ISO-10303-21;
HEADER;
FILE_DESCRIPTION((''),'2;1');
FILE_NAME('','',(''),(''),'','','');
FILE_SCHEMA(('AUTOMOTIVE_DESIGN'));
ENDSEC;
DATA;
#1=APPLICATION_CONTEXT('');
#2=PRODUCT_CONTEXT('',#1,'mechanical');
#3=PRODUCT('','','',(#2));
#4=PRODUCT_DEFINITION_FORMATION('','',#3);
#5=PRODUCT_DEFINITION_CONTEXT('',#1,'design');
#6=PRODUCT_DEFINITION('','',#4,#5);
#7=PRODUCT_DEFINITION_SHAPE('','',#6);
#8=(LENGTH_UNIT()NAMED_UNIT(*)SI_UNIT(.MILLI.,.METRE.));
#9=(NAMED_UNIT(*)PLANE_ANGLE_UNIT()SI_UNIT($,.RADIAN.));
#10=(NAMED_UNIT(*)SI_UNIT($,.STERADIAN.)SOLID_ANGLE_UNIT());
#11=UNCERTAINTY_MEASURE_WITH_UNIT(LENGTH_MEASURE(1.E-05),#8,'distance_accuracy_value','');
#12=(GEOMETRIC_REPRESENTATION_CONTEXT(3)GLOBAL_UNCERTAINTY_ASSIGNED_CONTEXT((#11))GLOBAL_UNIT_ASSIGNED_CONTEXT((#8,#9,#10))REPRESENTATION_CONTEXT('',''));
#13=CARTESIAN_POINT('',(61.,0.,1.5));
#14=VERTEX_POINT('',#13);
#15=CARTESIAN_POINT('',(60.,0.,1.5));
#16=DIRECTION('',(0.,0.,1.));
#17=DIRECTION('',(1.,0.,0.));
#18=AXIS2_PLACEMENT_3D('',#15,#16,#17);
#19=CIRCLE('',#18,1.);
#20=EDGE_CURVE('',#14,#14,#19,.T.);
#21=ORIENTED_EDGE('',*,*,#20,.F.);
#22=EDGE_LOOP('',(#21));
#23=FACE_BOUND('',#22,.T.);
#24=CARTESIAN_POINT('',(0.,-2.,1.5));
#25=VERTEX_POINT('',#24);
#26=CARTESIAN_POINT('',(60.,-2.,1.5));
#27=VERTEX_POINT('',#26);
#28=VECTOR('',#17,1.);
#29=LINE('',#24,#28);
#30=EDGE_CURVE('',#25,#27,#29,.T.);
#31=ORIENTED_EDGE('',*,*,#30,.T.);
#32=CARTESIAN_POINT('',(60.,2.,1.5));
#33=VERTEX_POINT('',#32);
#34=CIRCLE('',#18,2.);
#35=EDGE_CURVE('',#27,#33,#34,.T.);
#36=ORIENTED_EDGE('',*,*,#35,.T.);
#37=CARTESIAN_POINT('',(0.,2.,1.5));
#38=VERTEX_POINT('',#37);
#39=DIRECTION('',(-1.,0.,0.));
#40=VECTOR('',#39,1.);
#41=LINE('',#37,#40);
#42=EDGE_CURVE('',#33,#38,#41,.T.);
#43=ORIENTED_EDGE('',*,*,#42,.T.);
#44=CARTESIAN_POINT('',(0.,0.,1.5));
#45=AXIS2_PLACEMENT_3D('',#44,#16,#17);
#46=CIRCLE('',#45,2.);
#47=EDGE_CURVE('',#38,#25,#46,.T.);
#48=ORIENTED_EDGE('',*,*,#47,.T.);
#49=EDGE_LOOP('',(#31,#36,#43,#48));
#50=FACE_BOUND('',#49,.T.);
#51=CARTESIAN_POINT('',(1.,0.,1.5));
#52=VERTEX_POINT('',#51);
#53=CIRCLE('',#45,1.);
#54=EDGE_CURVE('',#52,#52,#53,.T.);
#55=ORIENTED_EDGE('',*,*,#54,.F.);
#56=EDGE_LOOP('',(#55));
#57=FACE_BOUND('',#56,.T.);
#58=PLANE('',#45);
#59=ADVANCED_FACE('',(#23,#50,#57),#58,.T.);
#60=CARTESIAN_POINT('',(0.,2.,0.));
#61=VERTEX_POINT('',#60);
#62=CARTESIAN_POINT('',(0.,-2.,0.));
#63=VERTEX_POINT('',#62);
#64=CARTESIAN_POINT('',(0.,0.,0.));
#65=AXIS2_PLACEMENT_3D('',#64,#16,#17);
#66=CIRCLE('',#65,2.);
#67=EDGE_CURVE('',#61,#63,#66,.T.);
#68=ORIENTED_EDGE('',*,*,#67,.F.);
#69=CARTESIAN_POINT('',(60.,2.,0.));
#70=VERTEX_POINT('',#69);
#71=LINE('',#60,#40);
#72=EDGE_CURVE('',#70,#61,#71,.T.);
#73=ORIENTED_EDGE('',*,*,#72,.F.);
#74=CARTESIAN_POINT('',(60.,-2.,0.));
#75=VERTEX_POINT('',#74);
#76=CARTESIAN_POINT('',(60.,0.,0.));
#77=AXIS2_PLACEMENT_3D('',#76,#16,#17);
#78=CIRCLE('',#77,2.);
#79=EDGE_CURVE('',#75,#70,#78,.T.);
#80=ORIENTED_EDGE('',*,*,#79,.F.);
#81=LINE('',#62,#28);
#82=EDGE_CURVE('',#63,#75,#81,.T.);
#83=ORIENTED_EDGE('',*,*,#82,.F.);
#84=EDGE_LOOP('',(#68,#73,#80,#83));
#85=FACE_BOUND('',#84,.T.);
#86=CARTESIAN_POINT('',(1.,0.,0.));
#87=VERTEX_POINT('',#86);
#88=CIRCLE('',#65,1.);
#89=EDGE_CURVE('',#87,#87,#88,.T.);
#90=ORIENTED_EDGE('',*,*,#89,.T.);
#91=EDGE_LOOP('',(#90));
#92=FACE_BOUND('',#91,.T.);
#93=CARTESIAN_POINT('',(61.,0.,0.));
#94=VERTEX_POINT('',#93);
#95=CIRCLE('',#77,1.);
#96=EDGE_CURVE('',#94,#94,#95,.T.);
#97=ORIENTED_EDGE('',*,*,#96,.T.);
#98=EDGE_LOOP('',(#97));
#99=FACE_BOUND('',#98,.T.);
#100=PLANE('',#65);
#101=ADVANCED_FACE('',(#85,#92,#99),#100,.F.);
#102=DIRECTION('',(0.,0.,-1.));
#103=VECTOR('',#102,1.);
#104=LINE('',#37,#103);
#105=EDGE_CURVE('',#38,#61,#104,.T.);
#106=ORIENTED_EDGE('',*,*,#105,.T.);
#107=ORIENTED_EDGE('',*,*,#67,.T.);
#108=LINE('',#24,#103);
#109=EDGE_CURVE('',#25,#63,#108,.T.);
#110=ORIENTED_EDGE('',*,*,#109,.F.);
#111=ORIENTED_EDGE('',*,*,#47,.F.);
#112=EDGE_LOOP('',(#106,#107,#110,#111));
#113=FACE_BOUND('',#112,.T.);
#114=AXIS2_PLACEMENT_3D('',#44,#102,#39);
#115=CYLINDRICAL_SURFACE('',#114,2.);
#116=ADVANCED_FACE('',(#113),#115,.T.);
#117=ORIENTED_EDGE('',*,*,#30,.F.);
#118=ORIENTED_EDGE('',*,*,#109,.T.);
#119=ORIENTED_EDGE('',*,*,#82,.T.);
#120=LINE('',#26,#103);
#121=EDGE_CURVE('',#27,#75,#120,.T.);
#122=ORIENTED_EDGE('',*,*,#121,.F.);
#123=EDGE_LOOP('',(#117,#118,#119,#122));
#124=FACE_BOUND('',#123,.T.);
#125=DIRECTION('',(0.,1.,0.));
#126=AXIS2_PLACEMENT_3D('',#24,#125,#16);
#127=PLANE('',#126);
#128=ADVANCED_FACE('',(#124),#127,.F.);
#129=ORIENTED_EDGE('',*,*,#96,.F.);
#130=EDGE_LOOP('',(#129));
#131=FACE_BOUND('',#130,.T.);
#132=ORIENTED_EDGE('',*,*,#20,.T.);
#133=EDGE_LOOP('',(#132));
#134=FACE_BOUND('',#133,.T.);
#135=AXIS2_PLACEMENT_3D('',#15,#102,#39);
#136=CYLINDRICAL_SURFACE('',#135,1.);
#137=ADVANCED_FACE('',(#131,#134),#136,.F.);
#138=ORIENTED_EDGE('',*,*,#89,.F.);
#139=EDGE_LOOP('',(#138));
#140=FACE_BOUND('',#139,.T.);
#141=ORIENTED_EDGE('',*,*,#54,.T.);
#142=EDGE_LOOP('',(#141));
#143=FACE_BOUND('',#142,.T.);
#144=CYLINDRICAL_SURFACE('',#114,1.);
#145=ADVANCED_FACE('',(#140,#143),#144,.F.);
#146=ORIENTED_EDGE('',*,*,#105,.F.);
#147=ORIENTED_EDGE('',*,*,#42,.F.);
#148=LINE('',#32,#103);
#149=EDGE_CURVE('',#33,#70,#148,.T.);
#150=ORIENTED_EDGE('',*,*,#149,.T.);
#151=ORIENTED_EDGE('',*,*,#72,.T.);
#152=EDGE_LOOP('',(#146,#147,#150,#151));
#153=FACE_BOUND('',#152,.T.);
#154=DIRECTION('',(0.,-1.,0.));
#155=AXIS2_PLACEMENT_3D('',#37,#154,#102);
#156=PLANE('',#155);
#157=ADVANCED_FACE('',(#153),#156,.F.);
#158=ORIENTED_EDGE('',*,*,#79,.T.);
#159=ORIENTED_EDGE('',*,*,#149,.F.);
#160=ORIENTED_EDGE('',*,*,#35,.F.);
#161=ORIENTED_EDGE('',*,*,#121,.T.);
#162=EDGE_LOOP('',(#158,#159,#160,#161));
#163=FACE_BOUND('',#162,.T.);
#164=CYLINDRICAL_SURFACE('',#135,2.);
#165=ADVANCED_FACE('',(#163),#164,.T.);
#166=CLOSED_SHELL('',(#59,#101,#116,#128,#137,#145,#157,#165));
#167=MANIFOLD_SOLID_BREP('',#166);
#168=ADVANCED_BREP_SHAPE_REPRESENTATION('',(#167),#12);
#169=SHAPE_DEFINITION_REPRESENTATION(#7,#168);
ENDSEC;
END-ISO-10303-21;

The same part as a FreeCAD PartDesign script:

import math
import FreeCAD as App
import Part
import Sketcher

doc = App.newDocument("Part")
body = doc.addObject("PartDesign::Body", "Body")

# Sketch on XY plane
sketch1 = body.newObject("Sketcher::SketchObject", "Sketch")
sketch1.AttachmentSupport = (doc.getObject("XY_Plane"), [""])
sketch1.MapMode = "FlatFace"
sketch1.addGeometry([
    Part.LineSegment(App.Vector(60, 2, 0), App.Vector(0, 2, 0)),  # 0
    Part.ArcOfCircle(Part.Circle(App.Vector(0, 0, 0), App.Vector(0, 0, 1), 2), math.radians(90), math.radians(270)),  # 1
    Part.LineSegment(App.Vector(0, -2, 0), App.Vector(60, -2, 0)),  # 2
    Part.ArcOfCircle(Part.Circle(App.Vector(60, 0, 0), App.Vector(0, 0, 1), 2), math.radians(-90), math.radians(90)),  # 3
    Part.Circle(App.Vector(60, 0, 0), App.Vector(0, 0, 1), 1),  # 4
    Part.Circle(App.Vector(0, 0, 0), App.Vector(0, 0, 1), 1),  # 5
], False)
sketch1.addConstraint([
    Sketcher.Constraint("Tangent", 0, 2, 1, 1),
    Sketcher.Constraint("Tangent", 1, 2, 2, 1),
    Sketcher.Constraint("Tangent", 2, 2, 3, 1),
    Sketcher.Constraint("Tangent", 3, 2, 0, 1),
    Sketcher.Constraint("Horizontal", 0),
    Sketcher.Constraint("Horizontal", 2),
    Sketcher.Constraint("Coincident", 1, 3, -1, 1),
    Sketcher.Constraint("Coincident", 5, 3, -1, 1),
    Sketcher.Constraint("Coincident", 4, 3, 3, 3),
    Sketcher.Constraint("Equal", 4, 5),
    Sketcher.Constraint("Diameter", 4, 2.0),
    Sketcher.Constraint("Radius", 1, 2.0),
    Sketcher.Constraint("DistanceX", 0, 2, 0, 1, 60.0),
])
pad1 = body.newObject("PartDesign::Pad", "Pad")
pad1.Profile = sketch1
pad1.Length = 1.5

doc.recompute()
